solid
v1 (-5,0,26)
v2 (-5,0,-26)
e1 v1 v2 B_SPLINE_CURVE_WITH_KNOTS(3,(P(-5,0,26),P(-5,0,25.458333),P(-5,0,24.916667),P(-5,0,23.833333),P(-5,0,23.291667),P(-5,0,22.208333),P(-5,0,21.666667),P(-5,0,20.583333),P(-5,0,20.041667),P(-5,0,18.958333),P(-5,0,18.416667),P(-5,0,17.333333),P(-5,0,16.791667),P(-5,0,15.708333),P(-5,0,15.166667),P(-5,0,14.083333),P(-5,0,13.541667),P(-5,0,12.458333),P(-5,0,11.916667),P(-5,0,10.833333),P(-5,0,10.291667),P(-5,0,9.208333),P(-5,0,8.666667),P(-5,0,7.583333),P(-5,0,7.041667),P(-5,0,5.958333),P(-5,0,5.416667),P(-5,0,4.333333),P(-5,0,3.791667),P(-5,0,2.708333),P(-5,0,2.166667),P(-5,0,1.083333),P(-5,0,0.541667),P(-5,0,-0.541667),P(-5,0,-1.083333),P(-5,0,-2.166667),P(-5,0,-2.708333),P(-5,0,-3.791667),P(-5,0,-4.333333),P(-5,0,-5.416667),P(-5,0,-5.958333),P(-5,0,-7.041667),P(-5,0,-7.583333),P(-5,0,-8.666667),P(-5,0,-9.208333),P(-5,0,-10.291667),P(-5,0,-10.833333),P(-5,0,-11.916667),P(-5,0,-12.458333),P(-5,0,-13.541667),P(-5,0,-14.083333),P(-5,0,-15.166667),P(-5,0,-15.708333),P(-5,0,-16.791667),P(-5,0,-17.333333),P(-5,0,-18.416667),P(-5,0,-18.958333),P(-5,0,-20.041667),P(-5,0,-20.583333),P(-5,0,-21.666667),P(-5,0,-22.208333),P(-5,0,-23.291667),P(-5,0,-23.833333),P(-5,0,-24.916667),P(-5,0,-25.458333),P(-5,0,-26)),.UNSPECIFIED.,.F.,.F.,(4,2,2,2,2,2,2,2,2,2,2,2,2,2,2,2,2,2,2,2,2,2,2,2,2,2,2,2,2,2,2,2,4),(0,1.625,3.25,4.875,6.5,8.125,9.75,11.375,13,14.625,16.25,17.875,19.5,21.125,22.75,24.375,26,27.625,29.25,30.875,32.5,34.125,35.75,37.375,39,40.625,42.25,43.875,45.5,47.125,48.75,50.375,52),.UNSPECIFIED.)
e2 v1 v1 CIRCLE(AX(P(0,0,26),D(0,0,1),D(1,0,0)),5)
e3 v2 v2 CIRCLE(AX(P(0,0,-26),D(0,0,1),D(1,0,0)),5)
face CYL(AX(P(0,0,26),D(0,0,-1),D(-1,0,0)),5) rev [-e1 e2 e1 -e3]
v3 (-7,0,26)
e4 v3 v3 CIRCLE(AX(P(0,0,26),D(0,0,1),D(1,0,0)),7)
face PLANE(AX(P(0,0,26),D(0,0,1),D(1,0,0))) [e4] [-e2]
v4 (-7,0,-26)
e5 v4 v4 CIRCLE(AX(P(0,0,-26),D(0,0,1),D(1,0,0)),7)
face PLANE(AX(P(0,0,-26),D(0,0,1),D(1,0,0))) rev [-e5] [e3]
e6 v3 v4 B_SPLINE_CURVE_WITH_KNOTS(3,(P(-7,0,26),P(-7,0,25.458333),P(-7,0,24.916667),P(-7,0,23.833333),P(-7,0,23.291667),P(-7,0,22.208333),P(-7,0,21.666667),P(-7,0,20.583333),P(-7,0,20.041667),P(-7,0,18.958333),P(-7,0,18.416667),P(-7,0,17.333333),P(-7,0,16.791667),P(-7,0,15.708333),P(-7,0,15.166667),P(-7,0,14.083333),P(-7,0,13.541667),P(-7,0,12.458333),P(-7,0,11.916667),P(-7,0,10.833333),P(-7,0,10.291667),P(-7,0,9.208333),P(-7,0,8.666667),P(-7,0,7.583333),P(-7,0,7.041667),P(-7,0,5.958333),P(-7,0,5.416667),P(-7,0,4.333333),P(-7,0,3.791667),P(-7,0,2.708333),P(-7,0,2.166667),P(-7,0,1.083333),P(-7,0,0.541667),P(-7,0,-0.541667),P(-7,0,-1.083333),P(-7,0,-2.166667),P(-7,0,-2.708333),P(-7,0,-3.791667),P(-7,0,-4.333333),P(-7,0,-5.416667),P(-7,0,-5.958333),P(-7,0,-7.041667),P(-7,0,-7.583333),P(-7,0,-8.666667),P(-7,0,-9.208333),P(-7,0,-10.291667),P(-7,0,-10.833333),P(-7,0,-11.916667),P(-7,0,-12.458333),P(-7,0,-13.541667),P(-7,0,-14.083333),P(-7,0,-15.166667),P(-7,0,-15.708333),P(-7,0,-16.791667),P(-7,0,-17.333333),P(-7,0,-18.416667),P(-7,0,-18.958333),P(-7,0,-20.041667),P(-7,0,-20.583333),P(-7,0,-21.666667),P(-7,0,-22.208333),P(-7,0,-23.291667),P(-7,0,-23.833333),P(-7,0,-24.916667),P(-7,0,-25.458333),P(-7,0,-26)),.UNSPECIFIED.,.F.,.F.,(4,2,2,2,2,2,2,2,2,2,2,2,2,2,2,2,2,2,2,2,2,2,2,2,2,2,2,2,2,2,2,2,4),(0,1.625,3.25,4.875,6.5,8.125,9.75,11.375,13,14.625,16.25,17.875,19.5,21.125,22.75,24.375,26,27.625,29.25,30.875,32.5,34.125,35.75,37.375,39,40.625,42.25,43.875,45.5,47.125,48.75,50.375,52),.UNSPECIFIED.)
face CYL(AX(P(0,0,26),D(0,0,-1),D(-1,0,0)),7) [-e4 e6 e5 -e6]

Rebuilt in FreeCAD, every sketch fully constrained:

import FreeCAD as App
import Part
import Sketcher

V = App.Vector
Q = App.Units.Quantity

doc = App.newDocument("Part")
body = doc.addObject("PartDesign::Body", "Body")

sketch1 = doc.addObject("Sketcher::SketchObject", "Sketch")
body.addObject(sketch1)
sketch1.AttachmentSupport = (doc.XY_Plane, [""])
sketch1.MapMode = "FlatFace"
sketch1.addGeometry(Part.Circle(V(0, 0, 0), V(0, 0, 1), 7), False)
sketch1.addGeometry(Part.Circle(V(0, 0, 0), V(0, 0, 1), 5), False)
sketch1.addConstraint(Sketcher.Constraint("Coincident", 0, 3, -1, 1))
sketch1.addConstraint(Sketcher.Constraint("Coincident", 1, 3, -1, 1))
sketch1.addConstraint(Sketcher.Constraint("Diameter", 0, Q("14 mm")))
sketch1.addConstraint(Sketcher.Constraint("Diameter", 1, Q("10 mm")))
pad1 = doc.addObject("PartDesign::Pad", "Pad")
body.addObject(pad1)
pad1.Profile = sketch1
pad1.Length = 52
pad1.Midplane = True

doc.recompute()
